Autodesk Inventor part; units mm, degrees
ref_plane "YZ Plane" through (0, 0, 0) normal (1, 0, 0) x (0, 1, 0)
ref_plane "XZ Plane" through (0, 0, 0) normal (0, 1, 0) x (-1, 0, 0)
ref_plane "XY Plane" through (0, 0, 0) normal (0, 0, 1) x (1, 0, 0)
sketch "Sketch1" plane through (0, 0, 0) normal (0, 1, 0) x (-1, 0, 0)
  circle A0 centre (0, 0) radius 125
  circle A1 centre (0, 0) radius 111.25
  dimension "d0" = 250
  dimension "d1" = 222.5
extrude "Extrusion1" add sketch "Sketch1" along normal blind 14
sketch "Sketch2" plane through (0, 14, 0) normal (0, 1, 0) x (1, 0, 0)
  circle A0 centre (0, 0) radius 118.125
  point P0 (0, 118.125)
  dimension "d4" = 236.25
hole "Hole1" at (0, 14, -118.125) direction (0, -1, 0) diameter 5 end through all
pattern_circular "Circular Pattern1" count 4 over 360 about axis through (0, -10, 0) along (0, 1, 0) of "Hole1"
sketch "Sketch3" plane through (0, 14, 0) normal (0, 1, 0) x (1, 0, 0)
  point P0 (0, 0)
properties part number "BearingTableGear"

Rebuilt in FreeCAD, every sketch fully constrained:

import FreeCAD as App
import Part
import Sketcher

V = App.Vector

doc = App.newDocument("Part")
body = doc.addObject("PartDesign::Body", "Body")

sketch1 = body.newObject("Sketcher::SketchObject", "Sketch")
sketch1.AttachmentSupport = (doc.getObject("XZ_Plane"), [""])
sketch1.MapMode = "FlatFace"
sketch1.addGeometry(Part.Circle(V(0, 0, 0), V(0, 0, 1), 125), False)
sketch1.addGeometry(Part.Circle(V(0, 0, 0), V(0, 0, 1), 111), False)
sketch1.addConstraint(Sketcher.Constraint("Coincident", 0, 3, -1, 1))
sketch1.addConstraint(Sketcher.Constraint("Coincident", 1, 3, -1, 1))
sketch1.addConstraint(Sketcher.Constraint("Diameter", 0, 250.0))
sketch1.addConstraint(Sketcher.Constraint("Diameter", 1, 222.5))
pad1 = body.newObject("PartDesign::Pad", "Pad")
pad1.Profile = sketch1
pad1.Length = 14
pad1.Reversed = True

sketch2 = body.newObject("Sketcher::SketchObject", "Sketch001")
sketch2.AttachmentSupport = (doc.getObject("XZ_Plane"), [""])
sketch2.MapMode = "FlatFace"
sketch2.AttachmentOffset = App.Placement(V(0, 0, -14), App.Rotation())
sketch2.addGeometry(Part.Circle(V(0, -118.1, 0), V(0, 0, 1), 2.5), False)
sketch2.addConstraint(Sketcher.Constraint("PointOnObject", 0, 3, -2))
sketch2.addConstraint(Sketcher.Constraint("Diameter", 0, 5.0))
sketch2.addConstraint(Sketcher.Constraint("DistanceY", 0, 3, -1, 1, 118.125))
doc.recompute()
hole = body.newObject("PartDesign::Hole", "Hole")
hole.Profile = sketch2
hole.ThreadType = "None"
hole.Diameter = 5
hole.DepthType = "ThroughAll"
hole.Reversed = True
doc.recompute()

polarpattern = body.newObject("PartDesign::PolarPattern", "PolarPattern")
polarpattern.Originals = [hole]
polarpattern.Axis = (doc.getObject("Y_Axis"), [""])
polarpattern.Angle = 360
polarpattern.Occurrences = 4
body.Tip = polarpattern

doc.recompute()
